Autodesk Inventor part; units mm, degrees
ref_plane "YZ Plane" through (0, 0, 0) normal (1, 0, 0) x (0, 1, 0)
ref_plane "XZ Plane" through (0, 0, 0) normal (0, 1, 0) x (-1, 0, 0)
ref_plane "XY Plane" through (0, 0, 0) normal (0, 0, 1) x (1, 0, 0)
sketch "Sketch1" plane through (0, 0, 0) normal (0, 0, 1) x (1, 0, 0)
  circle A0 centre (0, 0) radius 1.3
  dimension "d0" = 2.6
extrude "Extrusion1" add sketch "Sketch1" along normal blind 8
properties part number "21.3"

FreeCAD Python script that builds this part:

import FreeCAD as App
import Part
import Sketcher

V = App.Vector

doc = App.newDocument("Part")
body = doc.addObject("PartDesign::Body", "Body")

# Sketch on XY plane
sketch1 = doc.addObject("Sketcher::SketchObject", "Sketch")
body.addObject(sketch1)
sketch1.AttachmentSupport = (doc.XY_Plane, [""])
sketch1.MapMode = "FlatFace"
sketch1.addGeometry(Part.Circle(V(0, 0, 0), V(0, 0, 1), 1.3), False)
sketch1.addConstraint(Sketcher.Constraint("Coincident", 0, 3, -1, 1))
sketch1.addConstraint(Sketcher.Constraint("Diameter", 0, 2.6))
pad1 = doc.addObject("PartDesign::Pad", "Pad")
body.addObject(pad1)
pad1.Profile = sketch1
pad1.Length = 8

doc.recompute()
